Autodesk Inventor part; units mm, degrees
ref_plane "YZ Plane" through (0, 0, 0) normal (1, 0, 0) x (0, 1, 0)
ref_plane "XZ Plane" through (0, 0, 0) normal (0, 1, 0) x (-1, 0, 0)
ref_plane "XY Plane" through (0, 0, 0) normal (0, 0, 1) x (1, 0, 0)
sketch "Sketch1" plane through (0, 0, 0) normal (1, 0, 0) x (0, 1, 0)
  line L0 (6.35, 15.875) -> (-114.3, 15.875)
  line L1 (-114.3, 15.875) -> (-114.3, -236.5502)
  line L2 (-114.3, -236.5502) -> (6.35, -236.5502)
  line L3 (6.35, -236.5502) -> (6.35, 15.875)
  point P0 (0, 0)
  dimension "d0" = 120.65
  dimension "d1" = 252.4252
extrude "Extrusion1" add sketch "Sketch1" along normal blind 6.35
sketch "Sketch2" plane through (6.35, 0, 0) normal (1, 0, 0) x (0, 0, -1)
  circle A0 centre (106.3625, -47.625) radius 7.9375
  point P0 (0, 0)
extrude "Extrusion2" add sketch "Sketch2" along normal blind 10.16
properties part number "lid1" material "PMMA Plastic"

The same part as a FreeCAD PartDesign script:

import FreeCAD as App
import Part
import Sketcher
from FreeCAD import Vector
Q = App.Units.Quantity

doc = App.newDocument("Part")
body = doc.addObject("PartDesign::Body", "Body")

# Sketch on YZ plane
sketch1 = doc.addObject("Sketcher::SketchObject", "Sketch")
body.addObject(sketch1)
sketch1.AttachmentSupport = (doc.YZ_Plane, [""])
sketch1.MapMode = "FlatFace"
sketch1.addGeometry([
    Part.LineSegment(Vector(6, -237, 0), Vector(6, 16, 0)),
    Part.LineSegment(Vector(6, 16, 0), Vector(-114, 16, 0)),
    Part.LineSegment(Vector(-114, 16, 0), Vector(-114, -237, 0)),
    Part.LineSegment(Vector(-114, -237, 0), Vector(6, -237, 0)),
], False)
sketch1.addConstraint([
    Sketcher.Constraint("Coincident", 0, 2, 1, 1),
    Sketcher.Constraint("Coincident", 1, 2, 2, 1),
    Sketcher.Constraint("Coincident", 2, 2, 3, 1),
    Sketcher.Constraint("Coincident", 3, 2, 0, 1),
    Sketcher.Constraint("Vertical", 0),
    Sketcher.Constraint("Horizontal", 1),
    Sketcher.Constraint("Vertical", 2),
    Sketcher.Constraint("Horizontal", 3),
    Sketcher.Constraint("DistanceX", 1, 2, 1, 1, Q("4.75 in")),
    Sketcher.Constraint("DistanceY", 0, 1, 0, 2, Q("9.938 in")),
    Sketcher.Constraint("DistanceX", 1, 2, -1, 1, Q("4.5 in")),
    Sketcher.Constraint("DistanceY", -1, 1, 0, 2, Q("0.625 in")),
])
pad1 = doc.addObject("PartDesign::Pad", "Pad")
body.addObject(pad1)
pad1.Profile = sketch1
pad1.Length = Q("0.25 in")

# Sketch on YZ plane
sketch2 = doc.addObject("Sketcher::SketchObject", "Sketch001")
body.addObject(sketch2)
sketch2.AttachmentSupport = (doc.YZ_Plane, [""])
sketch2.MapMode = "FlatFace"
sketch2.AttachmentOffset = App.Placement(Vector(0, 0, 0.25 * 25.4), App.Rotation())
sketch2.addGeometry(Part.Circle(Vector(-48, -106, 0), Vector(0, 0, 1), 8), False)
sketch2.addConstraint([
    Sketcher.Constraint("Diameter", 0, Q("0.625 in")),
    Sketcher.Constraint("DistanceX", 0, 3, -1, 1, Q("1.875 in")),
    Sketcher.Constraint("DistanceY", 0, 3, -1, 1, Q("4.1875 in")),
])
pad2 = doc.addObject("PartDesign::Pad", "Pad001")
body.addObject(pad2)
pad2.Profile = sketch2
pad2.Length = Q("0.4 in")

doc.recompute()
